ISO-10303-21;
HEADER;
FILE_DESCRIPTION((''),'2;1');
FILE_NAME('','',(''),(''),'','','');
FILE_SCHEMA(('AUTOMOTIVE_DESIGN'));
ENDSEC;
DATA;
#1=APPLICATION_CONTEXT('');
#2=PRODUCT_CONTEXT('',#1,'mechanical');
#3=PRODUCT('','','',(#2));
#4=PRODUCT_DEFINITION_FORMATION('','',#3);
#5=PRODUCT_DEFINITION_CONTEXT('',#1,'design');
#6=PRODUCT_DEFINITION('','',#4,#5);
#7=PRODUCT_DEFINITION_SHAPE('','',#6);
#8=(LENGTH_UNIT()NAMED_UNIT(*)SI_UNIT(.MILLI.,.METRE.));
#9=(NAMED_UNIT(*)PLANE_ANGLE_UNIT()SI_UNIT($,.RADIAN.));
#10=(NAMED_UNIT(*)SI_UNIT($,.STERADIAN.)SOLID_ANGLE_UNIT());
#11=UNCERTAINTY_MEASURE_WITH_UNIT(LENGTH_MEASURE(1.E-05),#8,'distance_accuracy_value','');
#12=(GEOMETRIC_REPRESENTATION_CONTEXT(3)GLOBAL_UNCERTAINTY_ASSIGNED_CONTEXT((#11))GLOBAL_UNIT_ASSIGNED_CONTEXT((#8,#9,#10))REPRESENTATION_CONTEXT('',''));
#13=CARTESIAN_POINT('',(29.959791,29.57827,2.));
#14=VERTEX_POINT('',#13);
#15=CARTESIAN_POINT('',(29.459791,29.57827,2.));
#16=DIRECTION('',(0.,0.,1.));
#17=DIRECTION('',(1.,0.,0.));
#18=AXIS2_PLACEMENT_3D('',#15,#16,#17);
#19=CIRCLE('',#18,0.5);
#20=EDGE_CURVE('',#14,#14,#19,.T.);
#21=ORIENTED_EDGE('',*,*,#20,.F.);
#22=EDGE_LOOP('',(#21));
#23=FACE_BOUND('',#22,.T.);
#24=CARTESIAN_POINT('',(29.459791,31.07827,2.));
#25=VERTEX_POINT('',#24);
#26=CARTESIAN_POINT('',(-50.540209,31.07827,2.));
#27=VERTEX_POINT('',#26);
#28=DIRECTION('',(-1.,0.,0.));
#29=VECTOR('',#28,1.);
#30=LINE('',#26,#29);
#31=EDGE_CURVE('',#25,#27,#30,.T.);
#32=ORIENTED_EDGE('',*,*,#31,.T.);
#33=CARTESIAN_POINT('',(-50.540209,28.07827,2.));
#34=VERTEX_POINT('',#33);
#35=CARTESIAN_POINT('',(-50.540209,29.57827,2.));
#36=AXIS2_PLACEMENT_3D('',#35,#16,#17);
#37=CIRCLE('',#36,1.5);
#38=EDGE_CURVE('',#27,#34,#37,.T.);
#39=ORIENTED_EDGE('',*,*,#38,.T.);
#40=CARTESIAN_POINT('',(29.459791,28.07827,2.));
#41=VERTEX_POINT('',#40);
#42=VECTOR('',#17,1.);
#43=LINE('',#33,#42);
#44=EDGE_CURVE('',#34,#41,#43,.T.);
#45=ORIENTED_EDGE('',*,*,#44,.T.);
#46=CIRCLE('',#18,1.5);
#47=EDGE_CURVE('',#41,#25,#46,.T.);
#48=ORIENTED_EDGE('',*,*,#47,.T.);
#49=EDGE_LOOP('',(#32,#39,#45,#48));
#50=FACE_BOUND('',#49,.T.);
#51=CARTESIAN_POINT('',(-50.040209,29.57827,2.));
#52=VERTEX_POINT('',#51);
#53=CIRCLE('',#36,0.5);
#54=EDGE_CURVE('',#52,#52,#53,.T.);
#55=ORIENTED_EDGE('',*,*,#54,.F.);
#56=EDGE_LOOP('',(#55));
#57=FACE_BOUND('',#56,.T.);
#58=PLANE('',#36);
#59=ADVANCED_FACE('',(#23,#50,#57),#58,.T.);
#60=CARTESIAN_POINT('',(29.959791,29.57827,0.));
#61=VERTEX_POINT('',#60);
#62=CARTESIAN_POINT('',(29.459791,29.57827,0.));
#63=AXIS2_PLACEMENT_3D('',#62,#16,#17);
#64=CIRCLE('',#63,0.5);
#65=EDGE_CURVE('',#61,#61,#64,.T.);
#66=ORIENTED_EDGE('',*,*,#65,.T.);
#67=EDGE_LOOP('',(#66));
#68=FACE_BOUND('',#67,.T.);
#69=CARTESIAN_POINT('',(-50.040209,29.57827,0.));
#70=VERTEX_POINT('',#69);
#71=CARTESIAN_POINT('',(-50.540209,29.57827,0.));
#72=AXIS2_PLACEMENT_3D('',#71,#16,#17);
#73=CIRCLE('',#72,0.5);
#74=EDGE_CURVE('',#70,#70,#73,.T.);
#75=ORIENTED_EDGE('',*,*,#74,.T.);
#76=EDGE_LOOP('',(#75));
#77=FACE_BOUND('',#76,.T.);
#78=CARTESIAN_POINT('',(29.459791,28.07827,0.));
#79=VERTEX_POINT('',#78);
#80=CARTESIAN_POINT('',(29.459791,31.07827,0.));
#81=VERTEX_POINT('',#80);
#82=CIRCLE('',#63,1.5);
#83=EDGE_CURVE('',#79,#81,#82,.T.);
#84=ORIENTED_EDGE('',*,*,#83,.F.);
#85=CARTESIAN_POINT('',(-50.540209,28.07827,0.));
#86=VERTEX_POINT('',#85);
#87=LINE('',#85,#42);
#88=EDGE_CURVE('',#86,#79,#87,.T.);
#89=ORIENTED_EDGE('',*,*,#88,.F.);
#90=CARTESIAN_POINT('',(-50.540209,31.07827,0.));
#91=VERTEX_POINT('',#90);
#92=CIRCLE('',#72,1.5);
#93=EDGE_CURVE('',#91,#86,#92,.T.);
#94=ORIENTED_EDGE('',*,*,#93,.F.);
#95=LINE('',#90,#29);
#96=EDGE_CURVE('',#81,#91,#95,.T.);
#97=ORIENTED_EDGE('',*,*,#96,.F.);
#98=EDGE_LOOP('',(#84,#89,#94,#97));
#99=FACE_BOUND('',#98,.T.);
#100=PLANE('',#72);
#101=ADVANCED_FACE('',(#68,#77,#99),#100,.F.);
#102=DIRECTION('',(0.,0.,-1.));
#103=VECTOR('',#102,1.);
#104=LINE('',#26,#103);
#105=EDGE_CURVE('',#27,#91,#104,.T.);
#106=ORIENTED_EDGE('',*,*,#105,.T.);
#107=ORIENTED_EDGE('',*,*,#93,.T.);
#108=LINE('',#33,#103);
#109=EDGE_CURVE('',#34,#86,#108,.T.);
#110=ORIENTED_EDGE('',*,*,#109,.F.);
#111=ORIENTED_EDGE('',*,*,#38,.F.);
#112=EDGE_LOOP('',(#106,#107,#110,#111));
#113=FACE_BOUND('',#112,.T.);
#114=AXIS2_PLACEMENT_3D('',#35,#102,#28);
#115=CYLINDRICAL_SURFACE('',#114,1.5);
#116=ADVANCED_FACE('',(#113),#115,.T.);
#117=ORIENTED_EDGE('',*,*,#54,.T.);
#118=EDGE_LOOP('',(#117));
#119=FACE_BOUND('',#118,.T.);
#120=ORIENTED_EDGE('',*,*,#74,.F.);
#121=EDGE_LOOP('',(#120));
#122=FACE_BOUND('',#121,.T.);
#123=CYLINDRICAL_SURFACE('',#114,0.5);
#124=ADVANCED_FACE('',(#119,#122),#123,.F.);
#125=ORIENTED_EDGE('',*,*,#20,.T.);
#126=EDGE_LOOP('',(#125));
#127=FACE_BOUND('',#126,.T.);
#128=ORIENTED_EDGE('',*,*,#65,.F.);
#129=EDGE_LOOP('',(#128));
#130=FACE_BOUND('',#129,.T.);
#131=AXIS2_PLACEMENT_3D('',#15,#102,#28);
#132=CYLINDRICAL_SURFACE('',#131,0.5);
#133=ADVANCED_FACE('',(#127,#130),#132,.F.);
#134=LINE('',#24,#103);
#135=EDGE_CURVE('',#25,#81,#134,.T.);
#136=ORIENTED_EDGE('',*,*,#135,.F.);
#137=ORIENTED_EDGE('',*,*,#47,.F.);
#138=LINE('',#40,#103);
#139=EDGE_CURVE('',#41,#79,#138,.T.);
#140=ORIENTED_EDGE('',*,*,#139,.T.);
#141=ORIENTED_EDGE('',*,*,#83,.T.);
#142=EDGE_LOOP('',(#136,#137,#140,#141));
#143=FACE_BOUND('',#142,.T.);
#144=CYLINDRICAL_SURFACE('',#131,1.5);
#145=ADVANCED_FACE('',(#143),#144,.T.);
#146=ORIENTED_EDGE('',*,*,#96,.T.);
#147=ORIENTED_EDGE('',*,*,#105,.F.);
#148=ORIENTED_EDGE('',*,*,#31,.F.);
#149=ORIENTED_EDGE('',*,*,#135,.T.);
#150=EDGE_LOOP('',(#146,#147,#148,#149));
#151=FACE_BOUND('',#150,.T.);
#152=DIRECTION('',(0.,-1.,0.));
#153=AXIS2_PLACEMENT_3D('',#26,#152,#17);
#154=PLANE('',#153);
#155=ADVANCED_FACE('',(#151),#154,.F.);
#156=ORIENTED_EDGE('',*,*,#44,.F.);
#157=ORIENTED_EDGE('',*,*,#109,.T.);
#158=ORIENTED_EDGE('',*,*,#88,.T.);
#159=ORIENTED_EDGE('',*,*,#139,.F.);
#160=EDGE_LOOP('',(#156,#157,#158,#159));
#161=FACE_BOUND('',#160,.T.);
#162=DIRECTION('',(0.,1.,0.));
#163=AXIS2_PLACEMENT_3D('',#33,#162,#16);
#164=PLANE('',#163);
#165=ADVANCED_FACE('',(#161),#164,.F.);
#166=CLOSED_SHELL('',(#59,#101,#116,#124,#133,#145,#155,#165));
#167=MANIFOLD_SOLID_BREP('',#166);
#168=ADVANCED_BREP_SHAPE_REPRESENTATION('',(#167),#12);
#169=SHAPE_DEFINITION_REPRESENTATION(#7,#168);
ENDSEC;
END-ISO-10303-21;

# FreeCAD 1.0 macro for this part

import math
import FreeCAD as App
import Part
import Sketcher

V = App.Vector
Q = App.Units.Quantity

doc = App.newDocument("Part")
params = doc.addObject("Spreadsheet::Sheet", "Params")
for row, (alias, value) in enumerate([
    ("sketch1_diameter", "1 mm"),
    ("sketch1_radius", "1.5 mm"),
    ("sketch1_width", "80 mm"),
    ("pad1_length", "2 mm"),
], start=1):
    params.set(f"A{row}", alias)
    params.set(f"B{row}", "=" + value)
    params.setAlias(f"B{row}", alias)

body = doc.addObject("PartDesign::Body", "Body")

# Sketch on XY plane
sketch1 = body.newObject("Sketcher::SketchObject", "Sketch")
sketch1.AttachmentSupport = (doc.getObject("XY_Plane"), [""])
sketch1.MapMode = "FlatFace"
sketch1.addGeometry([
    Part.LineSegment(V(29.459791, 31.07827, 0), V(-50.540209, 31.07827, 0)),  # 0
    Part.ArcOfCircle(Part.Circle(V(-50.540209, 29.57827, 0), V(0, 0, 1), 1.5), math.radians(90), math.radians(270)),  # 1
    Part.LineSegment(V(-50.540209, 28.07827, 0), V(29.459791, 28.07827, 0)),  # 2
    Part.ArcOfCircle(Part.Circle(V(29.459791, 29.57827, 0), V(0, 0, 1), 1.5), math.radians(-90), math.radians(90)),  # 3
    Part.Circle(V(29.459791, 29.57827, 0), V(0, 0, 1), 0.5),  # 4
    Part.Circle(V(-50.540209, 29.57827, 0), V(0, 0, 1), 0.5),  # 5
], False)
sketch1.addConstraint([
    Sketcher.Constraint("Tangent", 0, 2, 1, 1),
    Sketcher.Constraint("Tangent", 1, 2, 2, 1),
    Sketcher.Constraint("Tangent", 2, 2, 3, 1),
    Sketcher.Constraint("Tangent", 3, 2, 0, 1),
    Sketcher.Constraint("Horizontal", 0),
    Sketcher.Constraint("Horizontal", 2),
    Sketcher.Constraint("Coincident", 4, 3, 3, 3),
    Sketcher.Constraint("Coincident", 5, 3, 1, 3),
    Sketcher.Constraint("Equal", 4, 5),
    Sketcher.Constraint("Diameter", 4, Q("1 mm")),
    Sketcher.Constraint("Radius", 1, Q("1.5 mm")),
    Sketcher.Constraint("DistanceX", 0, 2, 0, 1, Q("80 mm")),
    Sketcher.Constraint("DistanceX", 1, 3, -1, 1, Q("50.540209 mm")),
    Sketcher.Constraint("DistanceY", -1, 1, 1, 3, Q("29.57827 mm")),
])
sketch1.setExpression("Constraints[9]", "Params.sketch1_diameter")
sketch1.setExpression("Constraints[10]", "Params.sketch1_radius")
sketch1.setExpression("Constraints[11]", "Params.sketch1_width")
pad1 = body.newObject("PartDesign::Pad", "Pad")
pad1.Profile = sketch1
pad1.setExpression("Length", "Params.pad1_length")

doc.recompute()
